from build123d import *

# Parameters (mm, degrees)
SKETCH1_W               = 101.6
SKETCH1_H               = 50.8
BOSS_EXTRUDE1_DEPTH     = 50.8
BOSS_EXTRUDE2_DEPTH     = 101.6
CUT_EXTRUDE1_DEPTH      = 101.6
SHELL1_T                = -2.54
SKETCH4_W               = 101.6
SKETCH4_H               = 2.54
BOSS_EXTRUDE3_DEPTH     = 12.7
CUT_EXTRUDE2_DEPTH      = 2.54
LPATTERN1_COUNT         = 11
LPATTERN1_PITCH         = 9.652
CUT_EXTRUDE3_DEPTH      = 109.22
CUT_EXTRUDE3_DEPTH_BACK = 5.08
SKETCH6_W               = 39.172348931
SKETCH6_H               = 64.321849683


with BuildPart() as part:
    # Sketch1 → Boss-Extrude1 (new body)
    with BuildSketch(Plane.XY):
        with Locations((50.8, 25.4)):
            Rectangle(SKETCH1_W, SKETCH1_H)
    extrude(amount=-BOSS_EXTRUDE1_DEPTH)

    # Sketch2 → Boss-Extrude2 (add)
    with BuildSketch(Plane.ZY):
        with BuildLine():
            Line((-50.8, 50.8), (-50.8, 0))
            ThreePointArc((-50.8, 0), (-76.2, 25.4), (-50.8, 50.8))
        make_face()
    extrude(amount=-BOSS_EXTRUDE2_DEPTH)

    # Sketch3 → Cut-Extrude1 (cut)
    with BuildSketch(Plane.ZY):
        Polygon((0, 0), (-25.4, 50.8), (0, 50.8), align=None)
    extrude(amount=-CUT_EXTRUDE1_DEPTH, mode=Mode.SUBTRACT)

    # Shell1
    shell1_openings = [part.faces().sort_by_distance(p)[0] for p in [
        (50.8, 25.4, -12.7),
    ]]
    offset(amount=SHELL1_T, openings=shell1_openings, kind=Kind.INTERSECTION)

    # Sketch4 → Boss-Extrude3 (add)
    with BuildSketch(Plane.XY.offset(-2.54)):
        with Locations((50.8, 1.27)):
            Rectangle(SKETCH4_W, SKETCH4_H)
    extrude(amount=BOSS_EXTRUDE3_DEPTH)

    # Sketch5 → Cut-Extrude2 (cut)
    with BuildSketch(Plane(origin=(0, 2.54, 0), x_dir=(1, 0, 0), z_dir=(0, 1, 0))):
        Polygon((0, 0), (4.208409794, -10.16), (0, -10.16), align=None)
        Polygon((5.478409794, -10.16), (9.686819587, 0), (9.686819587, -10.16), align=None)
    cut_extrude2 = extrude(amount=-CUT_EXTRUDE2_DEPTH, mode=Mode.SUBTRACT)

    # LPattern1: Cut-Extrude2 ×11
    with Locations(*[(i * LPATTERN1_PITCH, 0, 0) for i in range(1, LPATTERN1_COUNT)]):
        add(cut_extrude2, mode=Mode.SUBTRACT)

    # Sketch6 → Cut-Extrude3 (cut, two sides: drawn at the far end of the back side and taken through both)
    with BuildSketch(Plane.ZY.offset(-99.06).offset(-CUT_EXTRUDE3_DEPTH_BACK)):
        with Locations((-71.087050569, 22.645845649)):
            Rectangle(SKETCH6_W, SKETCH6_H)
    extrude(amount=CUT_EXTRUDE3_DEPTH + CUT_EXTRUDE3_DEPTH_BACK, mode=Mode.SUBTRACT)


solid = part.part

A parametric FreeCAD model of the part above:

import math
import FreeCAD as App
import Part
import Sketcher
from FreeCAD import Vector
Q = App.Units.Quantity


def faces_at(feature, points):
    """Names of the faces that lie closest to the given points."""
    faces = feature.Shape.Faces
    near = lambda p: min(range(len(faces)), key=lambda i: faces[i].distToShape(Part.Vertex(*p))[0])
    return sorted({f"Face{near(p) + 1}" for p in points})


def add_polygon(sketch, points):
    """Adds a closed chain of lines whose ends are joined by coincident constraints."""
    first, n = sketch.GeometryCount, len(points)
    for a, b in zip(points, points[1:] + points[:1]):
        sketch.addGeometry(Part.LineSegment(App.Vector(*a, 0), App.Vector(*b, 0)), False)
    for i in range(n):
        sketch.addConstraint(Sketcher.Constraint("Coincident", first + i, 2, first + (i + 1) % n, 1))

doc = App.newDocument("Part")
body = doc.addObject("PartDesign::Body", "Body")

sketch1 = doc.addObject("Sketcher::SketchObject", "Sketch")
body.addObject(sketch1)
sketch1.AttachmentSupport = (doc.XY_Plane, [""])
sketch1.MapMode = "FlatFace"
add_polygon(sketch1, [(0, 51), (0, 0), (102, 0), (102, 51)])
sketch1.addConstraint([
    Sketcher.Constraint("Vertical", 0),
    Sketcher.Constraint("Horizontal", 1),
    Sketcher.Constraint("Vertical", 2),
    Sketcher.Constraint("Horizontal", 3),
    Sketcher.Constraint("Coincident", 0, 2, -1, 1),
    Sketcher.Constraint("DistanceX", 1, 1, 1, 2, Q("4 in")),
    Sketcher.Constraint("DistanceY", 0, 2, 0, 1, Q("2 in")),
])
pad1 = doc.addObject("PartDesign::Pad", "Pad")
body.addObject(pad1)
pad1.Profile = sketch1
pad1.Length = Q("2 in")
pad1.Reversed = True

sketch2 = doc.addObject("Sketcher::SketchObject", "Sketch001")
body.addObject(sketch2)
sketch2.AttachmentSupport = (doc.YZ_Plane, [""])
sketch2.MapMode = "FlatFace"
sketch2.addGeometry([
    Part.LineSegment(Vector(0, -51, 0), Vector(51, -51, 0)),
    Part.ArcOfCircle(Part.Circle(Vector(25, -51, 0), Vector(0, 0, 1), 25), math.radians(180), math.radians(360)),
], False)
sketch2.addConstraint([
    Sketcher.Constraint("Coincident", 0, 1, 1, 1),
    Sketcher.Constraint("Coincident", 1, 2, 0, 2),
    Sketcher.Constraint("Horizontal", 0),
    Sketcher.Constraint("PointOnObject", 0, 1, -2),
    Sketcher.Constraint("Horizontal", 1, 3, 0, 1),
    Sketcher.Constraint("Radius", 1, Q("1 in")),
    Sketcher.Constraint("DistanceY", 1, 3, -1, 1, Q("2 in")),
])
pad2 = doc.addObject("PartDesign::Pad", "Pad001")
body.addObject(pad2)
pad2.Profile = sketch2
pad2.Length = Q("4 in")

sketch3 = doc.addObject("Sketcher::SketchObject", "Sketch002")
body.addObject(sketch3)
sketch3.AttachmentSupport = (doc.YZ_Plane, [""])
sketch3.MapMode = "FlatFace"
add_polygon(sketch3, [(51, -25), (0, 0), (51, 0)])
sketch3.addConstraint([
    Sketcher.Constraint("Horizontal", 1),
    Sketcher.Constraint("Vertical", 2),
    Sketcher.Constraint("Coincident", 0, 2, -1, 1),
    Sketcher.Constraint("DistanceX", 1, 1, 1, 2, Q("2 in")),
    Sketcher.Constraint("DistanceY", 2, 2, 2, 1, Q("1 in")),
])
pocket1 = doc.addObject("PartDesign::Pocket", "Pocket")
body.addObject(pocket1)
pocket1.Profile = sketch3
pocket1.Length = Q("4 in")
pocket1.Reversed = True
doc.recompute()

thickness = doc.addObject("PartDesign::Thickness", "Thickness")
body.addObject(thickness)
thickness.Base = (pocket1, faces_at(pocket1, [(50.8, 25.4, -12.7)]))
thickness.Value = Q("0.1 in")
thickness.Reversed = True
thickness.Join = "Intersection"

sketch4 = doc.addObject("Sketcher::SketchObject", "Sketch003")
body.addObject(sketch4)
sketch4.AttachmentSupport = (doc.XY_Plane, [""])
sketch4.MapMode = "FlatFace"
sketch4.AttachmentOffset = App.Placement(Vector(0, 0, -0.1 * 25.4), App.Rotation())
add_polygon(sketch4, [(0, 2.5), (0, 0), (101.6, 0), (101.6, 2.5)])
sketch4.addConstraint([
    Sketcher.Constraint("Vertical", 0),
    Sketcher.Constraint("Horizontal", 1),
    Sketcher.Constraint("Vertical", 2),
    Sketcher.Constraint("Horizontal", 3),
    Sketcher.Constraint("Coincident", 0, 2, -1, 1),
    Sketcher.Constraint("DistanceX", 1, 1, 1, 2, Q("4 in")),
    Sketcher.Constraint("DistanceY", 0, 2, 0, 1, Q("0.1 in")),
])
pad3 = doc.addObject("PartDesign::Pad", "Pad002")
body.addObject(pad3)
pad3.Profile = sketch4
pad3.Length = Q("0.5 in")

sketch5 = doc.addObject("Sketcher::SketchObject", "Sketch004")
body.addObject(sketch5)
sketch5.AttachmentSupport = (doc.XZ_Plane, [""])
sketch5.MapMode = "FlatFace"
sketch5.AttachmentOffset = App.Placement(Vector(0, 0, -0.1 * 25.4), App.Rotation())
add_polygon(sketch5, [(4.2, 10.2), (0, 0), (0, 10.2)])
add_polygon(sketch5, [(9.7, 0), (5.5, 10.2), (9.7, 10.2)])
sketch5.addConstraint([
    Sketcher.Constraint("Vertical", 1),
    Sketcher.Constraint("Horizontal", 2),
    Sketcher.Constraint("Horizontal", 4),
    Sketcher.Constraint("Vertical", 5),
    Sketcher.Constraint("Coincident", 0, 2, -1, 1),
    Sketcher.Constraint("PointOnObject", 5, 2, -1),
    Sketcher.Constraint("Horizontal", 2, 2, 3, 2),
    Sketcher.Constraint("Equal", 2, 4),
    Sketcher.Constraint("DistanceY", 1, 1, 1, 2, Q("0.4 in")),
    Sketcher.Constraint("Angle", 0, Q("-112.5 deg")),
    Sketcher.Constraint("DistanceX", 2, 2, 3, 2, Q("0.05 in")),
])
pocket2 = doc.addObject("PartDesign::Pocket", "Pocket001")
body.addObject(pocket2)
pocket2.Profile = sketch5
pocket2.Length = Q("0.1 in")
pocket2.Reversed = True
doc.recompute()

linearpattern = doc.addObject("PartDesign::LinearPattern", "LinearPattern")
body.addObject(linearpattern)
linearpattern.Originals = [pocket2]
linearpattern.Direction = (doc.X_Axis, [""])
linearpattern.Mode = "offset"
linearpattern.Offset = Q("0.38 in")
linearpattern.Occurrences = 11
body.Tip = linearpattern

sketch6 = doc.addObject("Sketcher::SketchObject", "Sketch005")
body.addObject(sketch6)
sketch6.AttachmentSupport = (doc.YZ_Plane, [""])
sketch6.MapMode = "FlatFace"
sketch6.AttachmentOffset = App.Placement(Vector(0, 0, 3.9 * 25.4), App.Rotation())
add_polygon(sketch6, [(55, -91), (-10, -91), (-10, -52), (55, -52)])
sketch6.addConstraint([
    Sketcher.Constraint("Horizontal", 0),
    Sketcher.Constraint("Vertical", 1),
    Sketcher.Constraint("Horizontal", 2),
    Sketcher.Constraint("Vertical", 3),
    Sketcher.Constraint("DistanceX", 0, 2, 0, 1, Q("64.32185 mm")),
    Sketcher.Constraint("DistanceY", 1, 1, 1, 2, Q("39.172349 mm")),
    Sketcher.Constraint("DistanceX", 0, 2, -1, 1, Q("9.515079 mm")),
    Sketcher.Constraint("DistanceY", 0, 2, -1, 1, Q("90.673225 mm")),
])
pocket3 = doc.addObject("PartDesign::Pocket", "Pocket002")
body.addObject(pocket3)
pocket3.Profile = sketch6
pocket3.Type = "ThroughAll"
pocket3.Midplane = True

doc.recompute()
